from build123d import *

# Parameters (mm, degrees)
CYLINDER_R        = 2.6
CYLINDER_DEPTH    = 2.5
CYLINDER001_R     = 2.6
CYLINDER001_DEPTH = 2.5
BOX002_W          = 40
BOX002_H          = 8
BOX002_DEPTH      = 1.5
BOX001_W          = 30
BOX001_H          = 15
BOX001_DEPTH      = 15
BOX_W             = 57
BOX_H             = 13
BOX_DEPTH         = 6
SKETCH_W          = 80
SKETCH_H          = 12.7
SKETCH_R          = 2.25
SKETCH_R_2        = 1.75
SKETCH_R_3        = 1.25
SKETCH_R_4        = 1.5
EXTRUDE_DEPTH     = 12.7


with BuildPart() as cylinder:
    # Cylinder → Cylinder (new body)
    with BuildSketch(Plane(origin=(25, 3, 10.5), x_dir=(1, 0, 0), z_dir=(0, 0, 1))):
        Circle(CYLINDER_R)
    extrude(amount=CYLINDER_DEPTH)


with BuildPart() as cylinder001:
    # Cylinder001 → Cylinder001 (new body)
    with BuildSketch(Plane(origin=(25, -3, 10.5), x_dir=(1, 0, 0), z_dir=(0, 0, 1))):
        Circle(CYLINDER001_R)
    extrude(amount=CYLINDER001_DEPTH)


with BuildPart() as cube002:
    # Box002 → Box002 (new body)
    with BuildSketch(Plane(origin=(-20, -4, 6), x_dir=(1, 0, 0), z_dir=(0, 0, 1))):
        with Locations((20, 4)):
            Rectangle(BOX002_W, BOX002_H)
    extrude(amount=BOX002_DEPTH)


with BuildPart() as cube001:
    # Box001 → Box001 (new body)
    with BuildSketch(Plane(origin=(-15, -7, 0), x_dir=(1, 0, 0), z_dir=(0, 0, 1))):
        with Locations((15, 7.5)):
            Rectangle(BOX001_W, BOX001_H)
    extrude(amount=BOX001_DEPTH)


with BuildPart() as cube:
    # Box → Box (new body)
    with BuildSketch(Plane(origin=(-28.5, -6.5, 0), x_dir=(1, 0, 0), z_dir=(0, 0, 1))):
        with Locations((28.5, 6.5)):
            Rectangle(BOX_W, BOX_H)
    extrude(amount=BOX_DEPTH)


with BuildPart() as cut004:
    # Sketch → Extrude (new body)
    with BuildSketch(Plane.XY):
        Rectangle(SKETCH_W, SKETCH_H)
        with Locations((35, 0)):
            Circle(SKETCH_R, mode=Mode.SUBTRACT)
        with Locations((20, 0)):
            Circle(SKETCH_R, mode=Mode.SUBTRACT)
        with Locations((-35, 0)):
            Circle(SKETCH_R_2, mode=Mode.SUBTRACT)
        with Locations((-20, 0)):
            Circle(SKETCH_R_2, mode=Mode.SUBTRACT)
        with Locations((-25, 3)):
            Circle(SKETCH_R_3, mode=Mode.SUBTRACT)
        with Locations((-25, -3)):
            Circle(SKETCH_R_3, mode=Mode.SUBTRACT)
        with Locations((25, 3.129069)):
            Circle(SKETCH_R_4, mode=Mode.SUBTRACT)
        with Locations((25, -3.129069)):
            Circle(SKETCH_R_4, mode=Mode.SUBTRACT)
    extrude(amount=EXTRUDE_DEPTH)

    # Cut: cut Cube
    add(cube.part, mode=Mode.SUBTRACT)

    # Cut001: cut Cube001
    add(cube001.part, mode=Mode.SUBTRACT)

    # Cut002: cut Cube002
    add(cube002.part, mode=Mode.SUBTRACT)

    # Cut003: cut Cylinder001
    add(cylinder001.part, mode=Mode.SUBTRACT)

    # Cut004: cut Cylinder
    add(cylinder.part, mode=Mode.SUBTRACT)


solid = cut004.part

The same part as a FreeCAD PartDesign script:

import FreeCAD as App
import Part
import Sketcher
from FreeCAD import Vector
Q = App.Units.Quantity


def add_polygon(sketch, points):
    """Adds a closed chain of lines whose ends are joined by coincident constraints."""
    first, n = sketch.GeometryCount, len(points)
    for a, b in zip(points, points[1:] + points[:1]):
        sketch.addGeometry(Part.LineSegment(App.Vector(*a, 0), App.Vector(*b, 0)), False)
    for i in range(n):
        sketch.addConstraint(Sketcher.Constraint("Coincident", first + i, 2, first + (i + 1) % n, 1))

doc = App.newDocument("Part")
body = doc.addObject("PartDesign::Body", "Body")

sketch1 = body.newObject("Sketcher::SketchObject", "Sketch")
sketch1.AttachmentSupport = (doc.getObject("XY_Plane"), [""])
sketch1.MapMode = "FlatFace"
sketch1.AttachmentOffset = App.Placement(Vector(0, 0, 10.5), App.Rotation())
sketch1.addGeometry(Part.Circle(Vector(25, 3, 0), Vector(0, 0, 1), 2.6), False)
sketch1.addConstraint([
    Sketcher.Constraint("Diameter", 0, Q("5.2 mm")),
    Sketcher.Constraint("DistanceX", -1, 1, 0, 3, Q("25 mm")),
    Sketcher.Constraint("DistanceY", -1, 1, 0, 3, Q("3 mm")),
])
pad1 = body.newObject("PartDesign::Pad", "Pad")
pad1.Profile = sketch1
pad1.Length = 2.5
body2 = doc.addObject("PartDesign::Body", "Body001")

sketch2 = body2.newObject("Sketcher::SketchObject", "Sketch001")
sketch2.AttachmentSupport = (doc.getObject("XY_Plane001"), [""])
sketch2.MapMode = "FlatFace"
sketch2.AttachmentOffset = App.Placement(Vector(0, 0, 10.5), App.Rotation())
sketch2.addGeometry(Part.Circle(Vector(25, -3, 0), Vector(0, 0, 1), 2.6), False)
sketch2.addConstraint([
    Sketcher.Constraint("Diameter", 0, Q("5.2 mm")),
    Sketcher.Constraint("DistanceX", -1, 1, 0, 3, Q("25 mm")),
    Sketcher.Constraint("DistanceY", 0, 3, -1, 1, Q("3 mm")),
])
pad2 = body2.newObject("PartDesign::Pad", "Pad001")
pad2.Profile = sketch2
pad2.Length = 2.5
body3 = doc.addObject("PartDesign::Body", "Body002")

sketch3 = body3.newObject("Sketcher::SketchObject", "Sketch002")
sketch3.AttachmentSupport = (doc.getObject("XY_Plane002"), [""])
sketch3.MapMode = "FlatFace"
sketch3.AttachmentOffset = App.Placement(Vector(0, 0, 6), App.Rotation())
add_polygon(sketch3, [(-20, 4), (-20, -4), (20, -4), (20, 4)])
sketch3.addConstraint([
    Sketcher.Constraint("Vertical", 0),
    Sketcher.Constraint("Horizontal", 1),
    Sketcher.Constraint("Vertical", 2),
    Sketcher.Constraint("Horizontal", 3),
    Sketcher.Constraint("Symmetric", 0, 2, 2, 2, -1, 1),
    Sketcher.Constraint("DistanceX", 1, 1, 1, 2, Q("40 mm")),
    Sketcher.Constraint("DistanceY", 0, 2, 0, 1, Q("8 mm")),
])
pad3 = body3.newObject("PartDesign::Pad", "Pad002")
pad3.Profile = sketch3
pad3.Length = 1.5
body4 = doc.addObject("PartDesign::Body", "Body003")

sketch4 = body4.newObject("Sketcher::SketchObject", "Sketch003")
sketch4.AttachmentSupport = (doc.getObject("XY_Plane003"), [""])
sketch4.MapMode = "FlatFace"
add_polygon(sketch4, [(-15, 8), (-15, -7), (15, -7), (15, 8)])
sketch4.addConstraint([
    Sketcher.Constraint("Vertical", 0),
    Sketcher.Constraint("Horizontal", 1),
    Sketcher.Constraint("Vertical", 2),
    Sketcher.Constraint("Horizontal", 3),
    Sketcher.Constraint("DistanceX", 1, 1, 1, 2, Q("30 mm")),
    Sketcher.Constraint("DistanceY", 0, 2, 0, 1, Q("15 mm")),
    Sketcher.Constraint("DistanceX", 0, 2, -1, 1, Q("15 mm")),
    Sketcher.Constraint("DistanceY", 0, 2, -1, 1, Q("7 mm")),
])
pad4 = body4.newObject("PartDesign::Pad", "Pad003")
pad4.Profile = sketch4
pad4.Length = 15
body5 = doc.addObject("PartDesign::Body", "Body004")

sketch5 = body5.newObject("Sketcher::SketchObject", "Sketch004")
sketch5.AttachmentSupport = (doc.getObject("XY_Plane004"), [""])
sketch5.MapMode = "FlatFace"
add_polygon(sketch5, [(-28, 6), (-28, -6), (28, -6), (28, 6)])
sketch5.addConstraint([
    Sketcher.Constraint("Vertical", 0),
    Sketcher.Constraint("Horizontal", 1),
    Sketcher.Constraint("Vertical", 2),
    Sketcher.Constraint("Horizontal", 3),
    Sketcher.Constraint("Symmetric", 0, 2, 2, 2, -1, 1),
    Sketcher.Constraint("DistanceX", 1, 1, 1, 2, Q("57 mm")),
    Sketcher.Constraint("DistanceY", 0, 2, 0, 1, Q("13 mm")),
])
pad5 = body5.newObject("PartDesign::Pad", "Pad004")
pad5.Profile = sketch5
pad5.Length = 6
body6 = doc.addObject("PartDesign::Body", "Body005")
body6.AllowCompound = True

sketch6 = body6.newObject("Sketcher::SketchObject", "Sketch005")
sketch6.AttachmentSupport = (doc.getObject("XY_Plane005"), [""])
sketch6.MapMode = "FlatFace"
add_polygon(sketch6, [(-40, 6.3), (-40, -6.3), (40, -6.3), (40, 6.3)])
sketch6.addGeometry(Part.Circle(Vector(-25, -3, 0), Vector(0, 0, 1), 1.2), False)
sketch6.addGeometry(Part.Circle(Vector(25, -3.1, 0), Vector(0, 0, 1), 1.5), False)
sketch6.addGeometry(Part.Circle(Vector(-35, 0, 0), Vector(0, 0, 1), 1.8), False)
sketch6.addGeometry(Part.Circle(Vector(-20, 0, 0), Vector(0, 0, 1), 1.8), False)
sketch6.addGeometry(Part.Circle(Vector(-25, 3, 0), Vector(0, 0, 1), 1.2), False)
sketch6.addGeometry(Part.Circle(Vector(20, 0, 0), Vector(0, 0, 1), 2.2), False)
sketch6.addGeometry(Part.Circle(Vector(35, 0, 0), Vector(0, 0, 1), 2.2), False)
sketch6.addGeometry(Part.Circle(Vector(25, 3.1, 0), Vector(0, 0, 1), 1.5), False)
sketch6.addConstraint([
    Sketcher.Constraint("Vertical", 0),
    Sketcher.Constraint("Horizontal", 1),
    Sketcher.Constraint("Vertical", 2),
    Sketcher.Constraint("Horizontal", 3),
    Sketcher.Constraint("Equal", 6, 7),
    Sketcher.Constraint("Equal", 4, 8),
    Sketcher.Constraint("Equal", 9, 10),
    Sketcher.Constraint("Equal", 5, 11),
    Sketcher.Constraint("Symmetric", 7, 3, 9, 3, -1, 1),
    Sketcher.Constraint("Symmetric", 6, 3, 10, 3, -1, 1),
    Sketcher.Constraint("Symmetric", 0, 2, 2, 2, -1, 1),
    Sketcher.Constraint("Symmetric", 4, 3, 8, 3, -1),
    Sketcher.Constraint("Symmetric", 5, 3, 11, 3, -1),
    Sketcher.Constraint("PointOnObject", 6, 3, -1),
    Sketcher.Constraint("PointOnObject", 7, 3, -1),
    Sketcher.Constraint("Diameter", 5, Q("3 mm")),
    Sketcher.Constraint("Diameter", 4, Q("2.5 mm")),
    Sketcher.Constraint("Diameter", 6, Q("3.5 mm")),
    Sketcher.Constraint("Diameter", 9, Q("4.5 mm")),
    Sketcher.Constraint("DistanceX", 1, 1, 1, 2, Q("80 mm")),
    Sketcher.Constraint("DistanceY", 0, 2, 0, 1, Q("12.7 mm")),
    Sketcher.Constraint("DistanceX", 4, 3, -1, 1, Q("25 mm")),
    Sketcher.Constraint("DistanceY", 4, 3, -1, 1, Q("3 mm")),
    Sketcher.Constraint("DistanceX", -1, 1, 5, 3, Q("25 mm")),
    Sketcher.Constraint("DistanceX", 6, 3, -1, 1, Q("35 mm")),
    Sketcher.Constraint("DistanceX", 7, 3, -1, 1, Q("20 mm")),
    Sketcher.Constraint("DistanceY", 5, 3, -1, 1, Q("3.129069 mm")),
])
pad6 = body6.newObject("PartDesign::Pad", "Pad005")
pad6.Profile = sketch6
pad6.Length = 12.7
doc.recompute()

boolean = body6.newObject("PartDesign::Boolean", "Boolean")
boolean.Type = "Cut"
boolean.addObjects([body5])
doc.recompute()

boolean2 = body6.newObject("PartDesign::Boolean", "Boolean001")
boolean2.Type = "Cut"
boolean2.addObjects([body4])
doc.recompute()

boolean3 = body6.newObject("PartDesign::Boolean", "Boolean002")
boolean3.Type = "Cut"
boolean3.addObjects([body3])
doc.recompute()

boolean4 = body6.newObject("PartDesign::Boolean", "Boolean003")
boolean4.Type = "Cut"
boolean4.addObjects([body2])
doc.recompute()

boolean5 = body6.newObject("PartDesign::Boolean", "Boolean004")
boolean5.Type = "Cut"
boolean5.addObjects([body])

doc.recompute()
